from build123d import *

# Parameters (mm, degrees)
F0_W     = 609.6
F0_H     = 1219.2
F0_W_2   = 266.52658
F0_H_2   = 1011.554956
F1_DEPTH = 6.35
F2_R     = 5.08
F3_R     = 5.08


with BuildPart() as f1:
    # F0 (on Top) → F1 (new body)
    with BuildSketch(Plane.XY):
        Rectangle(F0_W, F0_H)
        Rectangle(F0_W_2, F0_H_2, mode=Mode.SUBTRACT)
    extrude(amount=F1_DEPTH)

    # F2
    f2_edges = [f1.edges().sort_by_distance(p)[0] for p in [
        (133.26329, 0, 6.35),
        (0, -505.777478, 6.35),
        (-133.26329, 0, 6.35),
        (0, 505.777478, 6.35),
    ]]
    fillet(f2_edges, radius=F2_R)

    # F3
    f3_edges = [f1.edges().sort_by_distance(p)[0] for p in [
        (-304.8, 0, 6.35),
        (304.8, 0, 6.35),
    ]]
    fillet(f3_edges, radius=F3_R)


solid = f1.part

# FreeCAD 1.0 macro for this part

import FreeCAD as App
import Part
import Sketcher
Q = App.Units.Quantity


def edges_at(feature, points):
    """Names of the edges that pass closest to the given points."""
    edges = feature.Shape.Edges
    near = lambda p: min(range(len(edges)), key=lambda i: edges[i].distToShape(Part.Vertex(*p))[0])
    return sorted({f"Edge{near(p) + 1}" for p in points})


def add_polygon(sketch, points):
    """Adds a closed chain of lines whose ends are joined by coincident constraints."""
    first, n = sketch.GeometryCount, len(points)
    for a, b in zip(points, points[1:] + points[:1]):
        sketch.addGeometry(Part.LineSegment(App.Vector(*a, 0), App.Vector(*b, 0)), False)
    for i in range(n):
        sketch.addConstraint(Sketcher.Constraint("Coincident", first + i, 2, first + (i + 1) % n, 1))

doc = App.newDocument("Part")
body = doc.addObject("PartDesign::Body", "Body")

# Sketch on XY plane
sketch1 = body.newObject("Sketcher::SketchObject", "Sketch")
sketch1.AttachmentSupport = (doc.getObject("XY_Plane"), [""])
sketch1.MapMode = "FlatFace"
add_polygon(sketch1, [(-304.8, 609.6), (-304.8, -609.6), (304.8, -609.6), (304.8, 609.6)])  # lines 0-3
add_polygon(sketch1, [(133.26329, -505.777478), (-133.26329, -505.777478), (-133.26329, 505.777478), (133.26329, 505.777478)])  # lines 4-7
sketch1.addConstraint(Sketcher.Constraint("Vertical", 0))
sketch1.addConstraint(Sketcher.Constraint("Horizontal", 1))
sketch1.addConstraint(Sketcher.Constraint("Vertical", 2))
sketch1.addConstraint(Sketcher.Constraint("Horizontal", 3))
sketch1.addConstraint(Sketcher.Constraint("Horizontal", 4))
sketch1.addConstraint(Sketcher.Constraint("Vertical", 5))
sketch1.addConstraint(Sketcher.Constraint("Horizontal", 6))
sketch1.addConstraint(Sketcher.Constraint("Vertical", 7))
sketch1.addConstraint(Sketcher.Constraint("Symmetric", 0, 2, 2, 2, -1, 1))
sketch1.addConstraint(Sketcher.Constraint("Symmetric", 4, 2, 6, 2, -1, 1))
sketch1.addConstraint(Sketcher.Constraint("DistanceX", 1, 1, 1, 2, Q("24 in")))
sketch1.addConstraint(Sketcher.Constraint("DistanceY", 0, 2, 0, 1, Q("48 in")))
sketch1.addConstraint(Sketcher.Constraint("DistanceX", 4, 2, 4, 1, 266.52658))
sketch1.addConstraint(Sketcher.Constraint("DistanceY", 5, 1, 5, 2, 1011.554956))
pad1 = body.newObject("PartDesign::Pad", "Pad")
pad1.Profile = sketch1
pad1.Length = Q("0.25 in")
doc.recompute()

fillet = body.newObject("PartDesign::Fillet", "Fillet")
fillet.Base = (pad1, edges_at(pad1, [
    (133.263, 0, 6.35),
    (0, -505.777, 6.35),
    (-133.263, 0, 6.35),
    (0, 505.777, 6.35),
]))
fillet.Radius = Q("0.2 in")
doc.recompute()

fillet2 = body.newObject("PartDesign::Fillet", "Fillet001")
fillet2.Base = (fillet, edges_at(fillet, [(-304.8, 0, 6.35), (304.8, 0, 6.35)]))
fillet2.Radius = Q("0.2 in")

doc.recompute()
